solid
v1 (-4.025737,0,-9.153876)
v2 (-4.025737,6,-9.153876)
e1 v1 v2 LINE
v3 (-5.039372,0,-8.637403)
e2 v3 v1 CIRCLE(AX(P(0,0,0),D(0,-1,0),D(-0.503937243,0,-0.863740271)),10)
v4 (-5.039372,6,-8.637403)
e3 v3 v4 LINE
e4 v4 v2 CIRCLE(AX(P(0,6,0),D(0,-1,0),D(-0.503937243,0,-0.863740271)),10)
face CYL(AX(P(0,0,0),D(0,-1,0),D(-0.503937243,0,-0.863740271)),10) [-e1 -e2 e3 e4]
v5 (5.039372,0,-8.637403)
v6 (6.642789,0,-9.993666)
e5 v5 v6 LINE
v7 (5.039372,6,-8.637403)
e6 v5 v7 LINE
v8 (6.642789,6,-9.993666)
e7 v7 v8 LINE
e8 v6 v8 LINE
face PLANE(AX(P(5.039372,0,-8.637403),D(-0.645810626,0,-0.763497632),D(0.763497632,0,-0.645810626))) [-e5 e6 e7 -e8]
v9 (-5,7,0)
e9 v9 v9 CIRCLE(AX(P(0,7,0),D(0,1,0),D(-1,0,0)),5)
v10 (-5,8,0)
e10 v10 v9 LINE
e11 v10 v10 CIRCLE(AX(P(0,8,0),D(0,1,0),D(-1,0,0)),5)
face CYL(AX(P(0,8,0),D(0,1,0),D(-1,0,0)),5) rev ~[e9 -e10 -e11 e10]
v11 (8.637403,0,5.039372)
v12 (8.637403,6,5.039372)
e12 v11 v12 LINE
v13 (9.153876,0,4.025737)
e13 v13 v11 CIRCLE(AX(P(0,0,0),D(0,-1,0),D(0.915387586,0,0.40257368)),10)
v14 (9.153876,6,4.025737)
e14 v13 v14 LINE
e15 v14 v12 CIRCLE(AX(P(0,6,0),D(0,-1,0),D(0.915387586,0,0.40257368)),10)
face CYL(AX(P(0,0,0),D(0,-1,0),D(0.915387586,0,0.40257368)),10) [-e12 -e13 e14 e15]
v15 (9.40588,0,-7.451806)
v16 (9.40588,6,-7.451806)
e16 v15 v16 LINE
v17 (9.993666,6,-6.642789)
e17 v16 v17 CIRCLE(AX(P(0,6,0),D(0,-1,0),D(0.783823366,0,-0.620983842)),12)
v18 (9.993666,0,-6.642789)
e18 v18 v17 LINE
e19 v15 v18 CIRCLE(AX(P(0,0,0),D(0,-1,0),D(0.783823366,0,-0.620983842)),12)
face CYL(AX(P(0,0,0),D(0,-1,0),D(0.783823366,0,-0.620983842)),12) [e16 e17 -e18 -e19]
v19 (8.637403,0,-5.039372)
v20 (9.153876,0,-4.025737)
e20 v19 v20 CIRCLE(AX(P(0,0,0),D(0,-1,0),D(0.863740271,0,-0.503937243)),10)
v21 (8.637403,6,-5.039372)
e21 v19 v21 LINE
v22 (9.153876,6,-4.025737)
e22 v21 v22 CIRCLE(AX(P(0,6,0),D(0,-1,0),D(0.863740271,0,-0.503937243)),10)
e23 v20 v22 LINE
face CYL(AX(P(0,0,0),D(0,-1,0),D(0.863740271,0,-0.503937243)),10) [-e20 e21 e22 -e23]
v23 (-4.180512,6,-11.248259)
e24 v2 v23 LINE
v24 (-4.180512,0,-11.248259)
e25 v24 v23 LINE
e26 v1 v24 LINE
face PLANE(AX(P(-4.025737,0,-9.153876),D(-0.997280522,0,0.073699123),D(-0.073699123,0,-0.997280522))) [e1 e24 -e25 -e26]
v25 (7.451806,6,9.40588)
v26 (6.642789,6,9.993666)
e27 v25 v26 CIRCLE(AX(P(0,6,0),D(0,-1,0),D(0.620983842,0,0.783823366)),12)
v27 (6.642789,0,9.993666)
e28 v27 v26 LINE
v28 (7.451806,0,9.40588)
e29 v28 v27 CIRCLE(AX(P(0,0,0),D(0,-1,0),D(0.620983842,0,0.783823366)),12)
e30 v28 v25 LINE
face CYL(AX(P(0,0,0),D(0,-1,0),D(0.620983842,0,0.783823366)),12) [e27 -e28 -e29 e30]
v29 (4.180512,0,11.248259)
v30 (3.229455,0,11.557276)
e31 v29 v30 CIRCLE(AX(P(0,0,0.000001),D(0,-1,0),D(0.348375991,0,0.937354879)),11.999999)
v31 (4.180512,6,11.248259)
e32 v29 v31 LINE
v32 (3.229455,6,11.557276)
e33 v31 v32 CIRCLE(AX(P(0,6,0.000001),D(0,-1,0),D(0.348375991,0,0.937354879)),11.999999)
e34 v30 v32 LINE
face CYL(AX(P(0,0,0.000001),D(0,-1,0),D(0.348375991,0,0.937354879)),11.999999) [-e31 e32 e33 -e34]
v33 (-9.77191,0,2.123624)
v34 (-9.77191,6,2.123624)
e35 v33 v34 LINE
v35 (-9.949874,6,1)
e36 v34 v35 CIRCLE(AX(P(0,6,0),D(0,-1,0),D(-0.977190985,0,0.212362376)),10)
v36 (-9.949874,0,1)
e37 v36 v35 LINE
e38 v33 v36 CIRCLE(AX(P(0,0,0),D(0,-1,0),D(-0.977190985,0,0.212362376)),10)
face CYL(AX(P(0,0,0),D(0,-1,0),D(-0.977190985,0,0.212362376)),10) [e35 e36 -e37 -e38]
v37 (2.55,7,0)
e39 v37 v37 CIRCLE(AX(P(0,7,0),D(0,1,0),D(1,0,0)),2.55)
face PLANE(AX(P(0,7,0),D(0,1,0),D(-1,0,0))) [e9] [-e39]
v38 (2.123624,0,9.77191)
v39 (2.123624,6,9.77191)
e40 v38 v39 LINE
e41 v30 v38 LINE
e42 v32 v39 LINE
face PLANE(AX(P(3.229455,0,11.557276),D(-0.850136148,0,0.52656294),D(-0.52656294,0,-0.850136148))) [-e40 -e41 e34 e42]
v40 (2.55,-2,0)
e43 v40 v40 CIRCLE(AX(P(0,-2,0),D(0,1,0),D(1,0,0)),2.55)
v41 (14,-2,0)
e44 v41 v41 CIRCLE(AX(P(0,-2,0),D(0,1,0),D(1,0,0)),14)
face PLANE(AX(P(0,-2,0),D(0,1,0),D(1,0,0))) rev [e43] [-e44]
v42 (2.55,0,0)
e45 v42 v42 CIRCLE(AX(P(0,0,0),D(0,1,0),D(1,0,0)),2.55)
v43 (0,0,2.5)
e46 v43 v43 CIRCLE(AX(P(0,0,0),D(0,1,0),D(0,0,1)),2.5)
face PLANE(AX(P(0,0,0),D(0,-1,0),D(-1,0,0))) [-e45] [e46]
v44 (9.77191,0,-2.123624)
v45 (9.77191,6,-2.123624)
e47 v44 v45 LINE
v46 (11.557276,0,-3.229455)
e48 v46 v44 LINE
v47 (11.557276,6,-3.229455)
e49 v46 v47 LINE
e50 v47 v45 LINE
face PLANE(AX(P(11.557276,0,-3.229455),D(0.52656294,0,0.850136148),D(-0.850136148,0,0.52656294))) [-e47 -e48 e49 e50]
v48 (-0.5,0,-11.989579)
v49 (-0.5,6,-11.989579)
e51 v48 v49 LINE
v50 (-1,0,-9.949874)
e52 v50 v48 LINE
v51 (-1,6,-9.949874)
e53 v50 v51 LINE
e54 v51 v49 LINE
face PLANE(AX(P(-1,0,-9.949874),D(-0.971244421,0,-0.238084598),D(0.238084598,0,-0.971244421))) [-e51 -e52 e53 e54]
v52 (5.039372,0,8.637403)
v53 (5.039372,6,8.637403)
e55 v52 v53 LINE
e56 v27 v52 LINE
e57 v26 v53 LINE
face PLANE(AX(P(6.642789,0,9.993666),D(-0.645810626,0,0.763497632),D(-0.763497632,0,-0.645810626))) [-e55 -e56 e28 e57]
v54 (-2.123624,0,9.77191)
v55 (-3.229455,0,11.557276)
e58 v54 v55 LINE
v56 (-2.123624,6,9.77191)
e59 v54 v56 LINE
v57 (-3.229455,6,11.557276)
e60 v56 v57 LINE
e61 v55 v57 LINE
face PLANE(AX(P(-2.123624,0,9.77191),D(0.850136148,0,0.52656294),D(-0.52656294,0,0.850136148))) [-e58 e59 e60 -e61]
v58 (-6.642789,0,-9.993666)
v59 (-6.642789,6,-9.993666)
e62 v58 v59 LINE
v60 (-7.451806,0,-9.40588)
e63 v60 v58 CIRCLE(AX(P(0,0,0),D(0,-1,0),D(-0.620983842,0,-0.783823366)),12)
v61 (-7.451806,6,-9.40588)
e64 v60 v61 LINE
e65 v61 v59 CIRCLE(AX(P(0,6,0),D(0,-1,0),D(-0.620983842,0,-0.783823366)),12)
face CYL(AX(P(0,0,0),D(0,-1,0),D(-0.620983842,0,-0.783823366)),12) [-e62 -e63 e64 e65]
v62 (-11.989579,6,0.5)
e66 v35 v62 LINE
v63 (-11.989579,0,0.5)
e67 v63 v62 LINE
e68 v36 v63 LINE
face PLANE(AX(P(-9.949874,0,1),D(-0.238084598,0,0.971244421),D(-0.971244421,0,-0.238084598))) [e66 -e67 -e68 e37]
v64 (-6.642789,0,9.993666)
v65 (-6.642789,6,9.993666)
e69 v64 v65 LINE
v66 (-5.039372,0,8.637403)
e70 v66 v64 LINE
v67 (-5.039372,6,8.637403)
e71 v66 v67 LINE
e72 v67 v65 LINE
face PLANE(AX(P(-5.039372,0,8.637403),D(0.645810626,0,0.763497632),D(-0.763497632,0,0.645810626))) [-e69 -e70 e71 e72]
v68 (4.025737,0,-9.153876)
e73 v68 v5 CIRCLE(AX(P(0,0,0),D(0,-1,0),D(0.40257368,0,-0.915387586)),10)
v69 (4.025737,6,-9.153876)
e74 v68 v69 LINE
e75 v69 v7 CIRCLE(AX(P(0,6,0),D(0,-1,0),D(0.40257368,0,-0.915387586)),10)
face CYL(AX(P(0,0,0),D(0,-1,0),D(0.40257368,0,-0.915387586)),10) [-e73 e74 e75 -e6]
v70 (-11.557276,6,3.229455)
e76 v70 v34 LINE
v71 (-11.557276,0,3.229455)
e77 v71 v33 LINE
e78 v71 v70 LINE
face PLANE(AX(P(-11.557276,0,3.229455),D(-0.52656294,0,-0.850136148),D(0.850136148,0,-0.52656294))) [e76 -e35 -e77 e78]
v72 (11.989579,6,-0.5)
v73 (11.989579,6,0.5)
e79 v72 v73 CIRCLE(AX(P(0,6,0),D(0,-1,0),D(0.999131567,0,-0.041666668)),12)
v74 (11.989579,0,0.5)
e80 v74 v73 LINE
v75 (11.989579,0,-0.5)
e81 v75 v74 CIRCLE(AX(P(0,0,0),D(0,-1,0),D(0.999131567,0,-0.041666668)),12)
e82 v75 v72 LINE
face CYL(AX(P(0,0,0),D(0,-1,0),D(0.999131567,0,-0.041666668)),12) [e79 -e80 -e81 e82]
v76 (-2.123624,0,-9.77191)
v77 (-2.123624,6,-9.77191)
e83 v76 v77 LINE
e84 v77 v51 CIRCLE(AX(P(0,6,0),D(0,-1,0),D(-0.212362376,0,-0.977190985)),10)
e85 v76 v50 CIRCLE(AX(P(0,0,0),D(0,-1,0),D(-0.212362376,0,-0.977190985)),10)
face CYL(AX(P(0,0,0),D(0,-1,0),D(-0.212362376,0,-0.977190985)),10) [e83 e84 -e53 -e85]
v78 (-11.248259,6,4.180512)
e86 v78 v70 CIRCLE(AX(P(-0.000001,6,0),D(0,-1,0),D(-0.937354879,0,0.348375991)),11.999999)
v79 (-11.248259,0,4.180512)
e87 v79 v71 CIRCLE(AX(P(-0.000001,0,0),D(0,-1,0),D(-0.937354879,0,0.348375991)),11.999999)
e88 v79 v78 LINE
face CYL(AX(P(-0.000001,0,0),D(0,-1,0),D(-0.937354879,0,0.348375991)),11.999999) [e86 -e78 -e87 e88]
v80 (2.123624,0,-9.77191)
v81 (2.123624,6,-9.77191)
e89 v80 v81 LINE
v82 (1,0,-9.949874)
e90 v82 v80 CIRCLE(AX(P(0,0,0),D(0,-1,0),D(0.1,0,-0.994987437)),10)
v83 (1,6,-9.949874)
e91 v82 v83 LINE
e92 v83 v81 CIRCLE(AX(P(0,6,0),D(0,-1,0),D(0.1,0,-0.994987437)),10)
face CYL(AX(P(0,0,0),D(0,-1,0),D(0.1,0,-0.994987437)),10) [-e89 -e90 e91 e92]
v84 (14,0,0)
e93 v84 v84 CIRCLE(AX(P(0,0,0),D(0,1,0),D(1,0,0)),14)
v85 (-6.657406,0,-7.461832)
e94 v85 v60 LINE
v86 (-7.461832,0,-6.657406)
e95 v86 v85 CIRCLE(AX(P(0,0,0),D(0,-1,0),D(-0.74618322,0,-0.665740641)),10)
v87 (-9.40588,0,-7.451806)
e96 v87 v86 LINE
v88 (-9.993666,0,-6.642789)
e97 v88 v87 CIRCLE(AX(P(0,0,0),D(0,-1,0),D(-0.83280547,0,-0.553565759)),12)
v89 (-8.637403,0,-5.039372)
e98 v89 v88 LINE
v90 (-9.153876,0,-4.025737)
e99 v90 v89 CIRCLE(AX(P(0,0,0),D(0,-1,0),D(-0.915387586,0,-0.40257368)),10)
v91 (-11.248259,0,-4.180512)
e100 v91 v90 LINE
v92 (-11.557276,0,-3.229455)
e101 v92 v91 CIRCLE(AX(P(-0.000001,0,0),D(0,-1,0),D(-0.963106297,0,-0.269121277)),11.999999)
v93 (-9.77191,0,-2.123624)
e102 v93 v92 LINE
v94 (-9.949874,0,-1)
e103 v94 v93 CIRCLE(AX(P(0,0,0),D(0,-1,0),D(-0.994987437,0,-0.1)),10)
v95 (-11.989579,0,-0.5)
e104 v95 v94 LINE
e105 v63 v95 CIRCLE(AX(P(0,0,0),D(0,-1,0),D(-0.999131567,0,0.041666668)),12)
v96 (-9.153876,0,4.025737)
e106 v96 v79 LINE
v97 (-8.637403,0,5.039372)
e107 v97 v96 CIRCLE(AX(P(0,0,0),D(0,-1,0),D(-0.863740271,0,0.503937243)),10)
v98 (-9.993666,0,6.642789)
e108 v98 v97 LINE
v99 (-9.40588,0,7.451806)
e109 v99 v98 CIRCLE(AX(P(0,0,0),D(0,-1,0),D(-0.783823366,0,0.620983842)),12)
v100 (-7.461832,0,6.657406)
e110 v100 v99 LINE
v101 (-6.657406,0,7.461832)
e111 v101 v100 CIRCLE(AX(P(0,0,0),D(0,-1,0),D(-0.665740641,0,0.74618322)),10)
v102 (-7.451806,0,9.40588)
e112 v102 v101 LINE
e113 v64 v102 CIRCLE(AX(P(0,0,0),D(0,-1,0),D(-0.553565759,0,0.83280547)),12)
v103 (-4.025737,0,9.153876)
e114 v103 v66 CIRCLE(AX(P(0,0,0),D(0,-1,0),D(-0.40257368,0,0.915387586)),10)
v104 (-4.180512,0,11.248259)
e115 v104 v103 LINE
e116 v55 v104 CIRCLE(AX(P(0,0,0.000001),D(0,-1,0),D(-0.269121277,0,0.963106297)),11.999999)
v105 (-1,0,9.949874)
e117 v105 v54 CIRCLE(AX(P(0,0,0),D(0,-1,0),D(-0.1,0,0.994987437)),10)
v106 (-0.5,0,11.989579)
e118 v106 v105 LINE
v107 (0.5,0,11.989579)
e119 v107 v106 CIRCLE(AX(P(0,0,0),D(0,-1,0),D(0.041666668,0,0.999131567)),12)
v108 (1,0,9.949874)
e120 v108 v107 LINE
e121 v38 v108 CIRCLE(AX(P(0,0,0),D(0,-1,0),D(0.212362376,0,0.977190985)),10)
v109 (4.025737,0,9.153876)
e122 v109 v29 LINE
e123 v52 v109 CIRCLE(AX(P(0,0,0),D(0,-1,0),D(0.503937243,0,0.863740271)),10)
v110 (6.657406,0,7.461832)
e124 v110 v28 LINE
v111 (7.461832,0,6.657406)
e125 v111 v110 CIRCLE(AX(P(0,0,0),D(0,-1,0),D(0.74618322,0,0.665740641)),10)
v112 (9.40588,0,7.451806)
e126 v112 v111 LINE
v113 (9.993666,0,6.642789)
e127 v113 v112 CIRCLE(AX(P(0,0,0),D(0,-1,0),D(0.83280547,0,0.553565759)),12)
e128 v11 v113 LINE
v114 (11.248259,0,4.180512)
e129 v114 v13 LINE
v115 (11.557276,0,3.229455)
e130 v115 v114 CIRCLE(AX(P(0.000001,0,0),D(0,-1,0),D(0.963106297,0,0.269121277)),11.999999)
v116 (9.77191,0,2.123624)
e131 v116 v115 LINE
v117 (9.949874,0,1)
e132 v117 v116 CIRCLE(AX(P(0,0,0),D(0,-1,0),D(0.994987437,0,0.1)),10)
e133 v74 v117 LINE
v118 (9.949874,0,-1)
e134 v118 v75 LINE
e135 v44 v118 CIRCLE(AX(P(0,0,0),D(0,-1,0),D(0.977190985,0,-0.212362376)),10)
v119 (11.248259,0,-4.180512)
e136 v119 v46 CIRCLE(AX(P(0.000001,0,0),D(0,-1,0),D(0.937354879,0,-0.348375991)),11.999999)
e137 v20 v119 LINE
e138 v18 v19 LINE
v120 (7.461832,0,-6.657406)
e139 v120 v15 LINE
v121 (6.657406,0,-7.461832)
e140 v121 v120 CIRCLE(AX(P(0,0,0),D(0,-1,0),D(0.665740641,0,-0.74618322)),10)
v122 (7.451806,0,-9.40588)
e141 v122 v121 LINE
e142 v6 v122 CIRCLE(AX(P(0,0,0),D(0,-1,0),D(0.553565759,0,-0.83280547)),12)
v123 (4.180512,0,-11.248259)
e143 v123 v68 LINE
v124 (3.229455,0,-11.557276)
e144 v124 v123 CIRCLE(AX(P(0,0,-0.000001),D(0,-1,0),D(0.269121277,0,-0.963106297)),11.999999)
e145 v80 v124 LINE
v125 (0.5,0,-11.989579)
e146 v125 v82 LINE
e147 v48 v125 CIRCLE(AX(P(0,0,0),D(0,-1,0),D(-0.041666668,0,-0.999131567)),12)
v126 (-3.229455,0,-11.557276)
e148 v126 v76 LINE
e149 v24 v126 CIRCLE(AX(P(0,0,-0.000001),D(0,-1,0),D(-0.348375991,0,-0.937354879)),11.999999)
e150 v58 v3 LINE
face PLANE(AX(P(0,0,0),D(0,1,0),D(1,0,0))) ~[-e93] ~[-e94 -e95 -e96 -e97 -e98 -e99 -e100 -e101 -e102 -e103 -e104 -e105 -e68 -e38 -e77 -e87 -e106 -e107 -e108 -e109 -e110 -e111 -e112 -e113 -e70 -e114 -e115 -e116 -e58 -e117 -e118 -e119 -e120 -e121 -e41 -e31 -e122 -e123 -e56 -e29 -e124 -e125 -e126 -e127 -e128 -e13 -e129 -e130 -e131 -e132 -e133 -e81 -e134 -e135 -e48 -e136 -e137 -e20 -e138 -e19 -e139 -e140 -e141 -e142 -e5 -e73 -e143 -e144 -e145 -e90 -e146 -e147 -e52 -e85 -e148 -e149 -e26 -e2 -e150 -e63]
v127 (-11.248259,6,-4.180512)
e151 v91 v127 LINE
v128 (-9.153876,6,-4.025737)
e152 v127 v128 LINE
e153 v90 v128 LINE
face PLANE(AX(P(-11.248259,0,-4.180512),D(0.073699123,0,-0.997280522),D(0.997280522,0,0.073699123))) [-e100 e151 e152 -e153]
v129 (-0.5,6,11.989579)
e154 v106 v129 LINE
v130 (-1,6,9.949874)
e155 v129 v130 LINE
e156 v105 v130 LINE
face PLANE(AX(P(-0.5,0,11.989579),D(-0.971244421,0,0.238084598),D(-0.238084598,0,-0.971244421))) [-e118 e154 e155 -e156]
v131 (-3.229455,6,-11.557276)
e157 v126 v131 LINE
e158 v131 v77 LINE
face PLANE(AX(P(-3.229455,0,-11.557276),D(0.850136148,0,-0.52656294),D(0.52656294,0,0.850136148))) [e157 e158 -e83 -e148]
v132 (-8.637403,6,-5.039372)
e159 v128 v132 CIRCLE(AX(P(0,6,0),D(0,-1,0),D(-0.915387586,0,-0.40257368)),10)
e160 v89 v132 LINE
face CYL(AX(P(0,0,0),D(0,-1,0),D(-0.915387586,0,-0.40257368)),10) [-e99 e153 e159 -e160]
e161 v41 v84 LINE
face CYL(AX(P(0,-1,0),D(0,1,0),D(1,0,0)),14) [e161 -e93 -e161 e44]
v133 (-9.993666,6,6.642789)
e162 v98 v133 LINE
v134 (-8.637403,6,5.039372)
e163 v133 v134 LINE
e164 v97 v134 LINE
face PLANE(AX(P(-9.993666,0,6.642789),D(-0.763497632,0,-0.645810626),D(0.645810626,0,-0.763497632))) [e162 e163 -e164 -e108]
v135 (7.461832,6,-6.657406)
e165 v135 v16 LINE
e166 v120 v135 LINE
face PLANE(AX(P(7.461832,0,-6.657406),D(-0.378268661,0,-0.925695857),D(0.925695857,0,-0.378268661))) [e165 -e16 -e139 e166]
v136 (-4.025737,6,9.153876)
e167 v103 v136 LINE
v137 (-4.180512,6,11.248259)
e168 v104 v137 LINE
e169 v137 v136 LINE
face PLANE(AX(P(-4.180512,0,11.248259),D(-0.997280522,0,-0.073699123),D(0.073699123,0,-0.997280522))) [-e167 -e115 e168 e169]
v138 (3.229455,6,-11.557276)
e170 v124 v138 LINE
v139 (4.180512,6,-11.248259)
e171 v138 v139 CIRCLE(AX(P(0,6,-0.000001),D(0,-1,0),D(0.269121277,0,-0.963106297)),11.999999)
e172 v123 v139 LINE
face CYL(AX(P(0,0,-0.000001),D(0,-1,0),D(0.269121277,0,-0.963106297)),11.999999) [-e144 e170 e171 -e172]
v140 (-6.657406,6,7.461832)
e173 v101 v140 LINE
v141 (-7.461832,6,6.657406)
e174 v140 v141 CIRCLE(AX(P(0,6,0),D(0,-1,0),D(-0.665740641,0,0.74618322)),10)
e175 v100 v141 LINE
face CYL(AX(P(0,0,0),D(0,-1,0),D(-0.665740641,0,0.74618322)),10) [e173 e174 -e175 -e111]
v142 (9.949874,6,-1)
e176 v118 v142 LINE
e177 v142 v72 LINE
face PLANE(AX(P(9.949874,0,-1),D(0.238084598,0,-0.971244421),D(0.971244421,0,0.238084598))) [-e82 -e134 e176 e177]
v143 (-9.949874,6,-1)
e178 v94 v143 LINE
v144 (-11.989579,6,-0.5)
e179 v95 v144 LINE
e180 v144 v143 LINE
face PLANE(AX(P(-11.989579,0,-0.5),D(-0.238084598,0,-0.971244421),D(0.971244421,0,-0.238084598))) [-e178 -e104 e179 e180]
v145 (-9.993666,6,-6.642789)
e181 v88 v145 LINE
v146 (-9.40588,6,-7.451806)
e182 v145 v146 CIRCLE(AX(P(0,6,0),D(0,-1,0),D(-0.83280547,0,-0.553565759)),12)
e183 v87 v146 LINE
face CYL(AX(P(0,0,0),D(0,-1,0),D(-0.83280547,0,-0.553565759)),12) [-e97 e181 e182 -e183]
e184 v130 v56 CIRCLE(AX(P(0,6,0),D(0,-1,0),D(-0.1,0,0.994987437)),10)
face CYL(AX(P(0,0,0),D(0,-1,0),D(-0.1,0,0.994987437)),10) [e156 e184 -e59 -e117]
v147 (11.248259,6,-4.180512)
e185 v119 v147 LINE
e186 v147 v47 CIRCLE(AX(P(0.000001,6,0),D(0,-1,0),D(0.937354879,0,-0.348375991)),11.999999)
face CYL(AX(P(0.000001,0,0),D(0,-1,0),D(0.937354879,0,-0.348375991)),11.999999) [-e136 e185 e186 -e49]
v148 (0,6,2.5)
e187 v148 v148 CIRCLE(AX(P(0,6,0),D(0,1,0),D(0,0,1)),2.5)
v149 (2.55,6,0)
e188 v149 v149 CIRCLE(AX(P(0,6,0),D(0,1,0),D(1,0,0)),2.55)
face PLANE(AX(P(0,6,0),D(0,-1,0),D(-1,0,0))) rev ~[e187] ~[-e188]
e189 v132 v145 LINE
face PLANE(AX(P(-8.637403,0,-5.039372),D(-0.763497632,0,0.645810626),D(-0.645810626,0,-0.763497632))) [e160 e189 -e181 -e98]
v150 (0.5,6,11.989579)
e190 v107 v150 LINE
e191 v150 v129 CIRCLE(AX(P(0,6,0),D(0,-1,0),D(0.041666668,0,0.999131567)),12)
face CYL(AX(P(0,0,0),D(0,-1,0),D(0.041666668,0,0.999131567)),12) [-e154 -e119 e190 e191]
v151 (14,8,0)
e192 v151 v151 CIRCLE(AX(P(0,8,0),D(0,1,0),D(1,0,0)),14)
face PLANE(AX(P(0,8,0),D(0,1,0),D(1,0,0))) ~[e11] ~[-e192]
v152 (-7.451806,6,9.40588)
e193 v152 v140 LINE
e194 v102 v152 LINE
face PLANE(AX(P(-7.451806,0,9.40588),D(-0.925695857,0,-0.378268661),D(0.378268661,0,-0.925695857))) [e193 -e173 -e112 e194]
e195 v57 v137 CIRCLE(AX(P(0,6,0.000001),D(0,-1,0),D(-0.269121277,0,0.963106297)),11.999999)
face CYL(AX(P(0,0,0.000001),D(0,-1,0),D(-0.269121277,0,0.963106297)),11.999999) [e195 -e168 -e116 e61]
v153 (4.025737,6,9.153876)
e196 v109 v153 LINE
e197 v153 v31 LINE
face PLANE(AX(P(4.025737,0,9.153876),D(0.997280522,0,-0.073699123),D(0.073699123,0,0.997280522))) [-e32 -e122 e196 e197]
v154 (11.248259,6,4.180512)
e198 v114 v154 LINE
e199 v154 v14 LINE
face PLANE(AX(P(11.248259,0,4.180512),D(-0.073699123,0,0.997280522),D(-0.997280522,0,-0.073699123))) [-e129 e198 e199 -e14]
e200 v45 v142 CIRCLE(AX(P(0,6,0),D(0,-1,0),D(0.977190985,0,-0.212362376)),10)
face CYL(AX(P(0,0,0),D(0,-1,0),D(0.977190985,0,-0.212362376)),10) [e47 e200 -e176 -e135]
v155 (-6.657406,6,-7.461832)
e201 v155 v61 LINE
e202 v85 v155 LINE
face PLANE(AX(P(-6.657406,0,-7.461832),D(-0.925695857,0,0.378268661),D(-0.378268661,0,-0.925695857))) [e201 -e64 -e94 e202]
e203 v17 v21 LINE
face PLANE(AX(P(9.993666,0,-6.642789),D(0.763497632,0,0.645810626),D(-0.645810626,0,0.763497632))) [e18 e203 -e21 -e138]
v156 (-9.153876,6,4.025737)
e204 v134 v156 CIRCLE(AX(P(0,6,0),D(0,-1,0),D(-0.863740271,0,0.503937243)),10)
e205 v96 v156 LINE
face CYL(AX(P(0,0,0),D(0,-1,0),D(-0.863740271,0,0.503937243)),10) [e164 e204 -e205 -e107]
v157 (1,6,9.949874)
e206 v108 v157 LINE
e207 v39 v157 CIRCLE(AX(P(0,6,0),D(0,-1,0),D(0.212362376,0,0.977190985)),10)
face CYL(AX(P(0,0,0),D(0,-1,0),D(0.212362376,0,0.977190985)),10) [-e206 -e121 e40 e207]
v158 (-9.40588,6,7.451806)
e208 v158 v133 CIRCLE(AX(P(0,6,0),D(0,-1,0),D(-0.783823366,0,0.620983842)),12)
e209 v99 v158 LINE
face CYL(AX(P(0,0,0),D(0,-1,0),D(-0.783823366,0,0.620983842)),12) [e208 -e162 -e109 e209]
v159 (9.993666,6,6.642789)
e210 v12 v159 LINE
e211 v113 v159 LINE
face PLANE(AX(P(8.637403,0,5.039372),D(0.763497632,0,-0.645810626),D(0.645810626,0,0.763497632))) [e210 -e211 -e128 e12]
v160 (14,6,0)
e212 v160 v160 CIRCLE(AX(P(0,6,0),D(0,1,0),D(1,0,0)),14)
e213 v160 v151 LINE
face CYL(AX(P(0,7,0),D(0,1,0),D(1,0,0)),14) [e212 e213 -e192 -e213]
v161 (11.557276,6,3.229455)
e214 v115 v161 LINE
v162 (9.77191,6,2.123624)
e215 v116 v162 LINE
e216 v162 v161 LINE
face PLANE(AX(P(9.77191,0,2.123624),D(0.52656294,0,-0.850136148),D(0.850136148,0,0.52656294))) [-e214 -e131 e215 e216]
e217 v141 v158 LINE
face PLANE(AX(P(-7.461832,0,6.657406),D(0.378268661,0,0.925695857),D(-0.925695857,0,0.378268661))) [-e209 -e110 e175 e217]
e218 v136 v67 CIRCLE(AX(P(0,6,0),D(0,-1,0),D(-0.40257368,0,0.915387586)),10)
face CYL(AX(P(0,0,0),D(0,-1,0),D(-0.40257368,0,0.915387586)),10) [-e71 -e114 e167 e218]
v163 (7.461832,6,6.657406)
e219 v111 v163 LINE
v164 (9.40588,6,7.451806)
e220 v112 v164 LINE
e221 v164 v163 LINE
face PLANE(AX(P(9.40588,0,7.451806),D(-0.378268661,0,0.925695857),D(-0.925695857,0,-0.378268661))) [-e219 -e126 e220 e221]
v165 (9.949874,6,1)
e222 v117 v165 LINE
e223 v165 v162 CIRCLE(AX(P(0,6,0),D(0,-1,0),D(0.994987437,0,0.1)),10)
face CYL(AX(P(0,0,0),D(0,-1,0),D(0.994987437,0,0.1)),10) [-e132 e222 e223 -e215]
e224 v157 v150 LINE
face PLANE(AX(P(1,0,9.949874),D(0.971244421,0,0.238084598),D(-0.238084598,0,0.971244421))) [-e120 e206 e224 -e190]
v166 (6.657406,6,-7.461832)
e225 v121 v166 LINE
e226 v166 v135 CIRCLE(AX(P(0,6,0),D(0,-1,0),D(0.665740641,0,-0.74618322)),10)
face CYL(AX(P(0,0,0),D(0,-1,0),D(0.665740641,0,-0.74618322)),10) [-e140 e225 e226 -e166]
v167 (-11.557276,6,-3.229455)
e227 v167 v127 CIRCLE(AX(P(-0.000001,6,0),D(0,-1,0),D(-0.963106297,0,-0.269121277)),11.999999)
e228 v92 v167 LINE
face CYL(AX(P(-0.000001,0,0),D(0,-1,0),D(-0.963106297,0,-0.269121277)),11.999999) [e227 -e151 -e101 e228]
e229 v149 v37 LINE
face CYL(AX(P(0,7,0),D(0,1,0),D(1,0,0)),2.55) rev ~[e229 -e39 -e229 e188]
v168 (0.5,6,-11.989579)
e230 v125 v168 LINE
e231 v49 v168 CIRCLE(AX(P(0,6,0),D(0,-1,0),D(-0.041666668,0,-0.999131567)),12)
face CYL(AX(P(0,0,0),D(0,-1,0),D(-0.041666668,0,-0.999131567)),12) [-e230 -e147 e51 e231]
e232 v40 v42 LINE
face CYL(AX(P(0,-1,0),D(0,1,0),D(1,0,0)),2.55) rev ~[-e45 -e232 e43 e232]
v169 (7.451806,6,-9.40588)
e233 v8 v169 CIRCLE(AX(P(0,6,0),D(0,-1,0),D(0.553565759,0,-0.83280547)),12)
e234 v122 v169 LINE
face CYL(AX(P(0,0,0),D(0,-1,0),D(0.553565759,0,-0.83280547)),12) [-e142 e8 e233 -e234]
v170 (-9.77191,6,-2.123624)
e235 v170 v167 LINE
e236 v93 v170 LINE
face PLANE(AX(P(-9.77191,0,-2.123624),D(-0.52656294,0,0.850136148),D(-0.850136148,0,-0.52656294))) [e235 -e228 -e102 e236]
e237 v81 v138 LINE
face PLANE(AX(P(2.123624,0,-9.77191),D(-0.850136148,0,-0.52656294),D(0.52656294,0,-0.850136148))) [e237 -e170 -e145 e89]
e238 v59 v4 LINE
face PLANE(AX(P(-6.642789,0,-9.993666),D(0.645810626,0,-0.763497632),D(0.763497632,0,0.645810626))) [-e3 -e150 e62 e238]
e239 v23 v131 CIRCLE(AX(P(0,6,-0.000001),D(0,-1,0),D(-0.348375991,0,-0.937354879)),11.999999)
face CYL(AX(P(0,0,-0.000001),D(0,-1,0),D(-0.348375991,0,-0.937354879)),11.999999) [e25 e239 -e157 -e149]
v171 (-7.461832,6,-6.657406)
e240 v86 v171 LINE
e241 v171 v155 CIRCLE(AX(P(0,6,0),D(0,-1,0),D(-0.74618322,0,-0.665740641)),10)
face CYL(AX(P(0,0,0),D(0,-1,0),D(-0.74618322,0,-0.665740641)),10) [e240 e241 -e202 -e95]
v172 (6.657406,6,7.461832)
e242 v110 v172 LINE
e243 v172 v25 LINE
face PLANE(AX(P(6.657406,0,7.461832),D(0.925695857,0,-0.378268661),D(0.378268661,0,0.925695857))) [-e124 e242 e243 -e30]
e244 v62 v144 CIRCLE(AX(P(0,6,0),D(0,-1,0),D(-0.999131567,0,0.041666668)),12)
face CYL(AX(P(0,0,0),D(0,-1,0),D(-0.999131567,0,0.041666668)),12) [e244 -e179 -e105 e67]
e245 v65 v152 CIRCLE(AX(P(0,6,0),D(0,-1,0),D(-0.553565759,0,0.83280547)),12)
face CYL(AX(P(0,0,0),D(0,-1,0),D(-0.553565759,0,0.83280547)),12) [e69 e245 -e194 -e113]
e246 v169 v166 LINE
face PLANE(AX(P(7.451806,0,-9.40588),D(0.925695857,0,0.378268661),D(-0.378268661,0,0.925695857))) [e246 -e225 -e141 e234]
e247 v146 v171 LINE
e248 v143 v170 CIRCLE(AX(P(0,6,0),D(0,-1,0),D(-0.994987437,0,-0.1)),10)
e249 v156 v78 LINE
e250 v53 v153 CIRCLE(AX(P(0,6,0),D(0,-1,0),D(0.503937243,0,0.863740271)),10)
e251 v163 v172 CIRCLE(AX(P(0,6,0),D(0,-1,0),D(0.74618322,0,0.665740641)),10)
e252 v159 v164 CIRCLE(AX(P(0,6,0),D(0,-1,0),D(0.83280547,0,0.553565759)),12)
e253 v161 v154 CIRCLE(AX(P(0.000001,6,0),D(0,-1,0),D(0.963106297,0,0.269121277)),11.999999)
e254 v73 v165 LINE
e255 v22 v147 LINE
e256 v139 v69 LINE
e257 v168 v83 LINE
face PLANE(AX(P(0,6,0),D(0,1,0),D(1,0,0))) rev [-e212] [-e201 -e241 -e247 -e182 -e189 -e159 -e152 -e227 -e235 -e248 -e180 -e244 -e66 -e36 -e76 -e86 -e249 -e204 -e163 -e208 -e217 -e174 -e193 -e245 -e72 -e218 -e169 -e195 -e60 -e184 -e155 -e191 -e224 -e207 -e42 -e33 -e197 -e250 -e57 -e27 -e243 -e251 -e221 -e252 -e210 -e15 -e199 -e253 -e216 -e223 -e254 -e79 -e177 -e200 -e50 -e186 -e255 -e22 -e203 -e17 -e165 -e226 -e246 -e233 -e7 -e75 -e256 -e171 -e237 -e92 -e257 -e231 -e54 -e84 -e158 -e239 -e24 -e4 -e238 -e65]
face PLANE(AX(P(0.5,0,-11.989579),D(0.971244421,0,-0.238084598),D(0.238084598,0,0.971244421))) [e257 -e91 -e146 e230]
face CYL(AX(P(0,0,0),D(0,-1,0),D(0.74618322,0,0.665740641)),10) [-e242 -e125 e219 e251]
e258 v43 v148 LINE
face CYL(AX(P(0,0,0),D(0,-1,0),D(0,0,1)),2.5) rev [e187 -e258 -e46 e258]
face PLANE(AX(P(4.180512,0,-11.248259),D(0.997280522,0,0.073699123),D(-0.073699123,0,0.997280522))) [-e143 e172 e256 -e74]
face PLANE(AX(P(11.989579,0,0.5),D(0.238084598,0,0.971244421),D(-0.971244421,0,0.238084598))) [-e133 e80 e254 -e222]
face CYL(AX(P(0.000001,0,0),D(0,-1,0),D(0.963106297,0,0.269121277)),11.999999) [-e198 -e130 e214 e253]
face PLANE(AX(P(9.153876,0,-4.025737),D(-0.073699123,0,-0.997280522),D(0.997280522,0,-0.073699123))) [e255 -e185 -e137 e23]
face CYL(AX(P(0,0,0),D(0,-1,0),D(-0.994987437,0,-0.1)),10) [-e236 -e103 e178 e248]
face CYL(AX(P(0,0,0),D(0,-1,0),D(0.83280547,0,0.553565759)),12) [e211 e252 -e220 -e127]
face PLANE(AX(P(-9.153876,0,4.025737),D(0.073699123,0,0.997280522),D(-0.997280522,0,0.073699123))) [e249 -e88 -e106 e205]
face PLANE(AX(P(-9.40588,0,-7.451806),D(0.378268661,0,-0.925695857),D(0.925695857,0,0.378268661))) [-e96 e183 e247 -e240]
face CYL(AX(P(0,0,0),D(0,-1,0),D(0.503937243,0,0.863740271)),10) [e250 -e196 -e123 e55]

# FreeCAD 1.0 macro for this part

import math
import FreeCAD as App
import Part
import Sketcher
from FreeCAD import Vector


def add_polygon(sketch, points):
    """Adds a closed chain of lines whose ends are joined by coincident constraints."""
    first, n = sketch.GeometryCount, len(points)
    for a, b in zip(points, points[1:] + points[:1]):
        sketch.addGeometry(Part.LineSegment(App.Vector(*a, 0), App.Vector(*b, 0)), False)
    for i in range(n):
        sketch.addConstraint(Sketcher.Constraint("Coincident", first + i, 2, first + (i + 1) % n, 1))

doc = App.newDocument("Part")
params = doc.addObject("Spreadsheet::Sheet", "Params")
for row, (alias, value) in enumerate([
    ("sketch1_diameter", "5 mm"),
    ("sketch1_radius", "12 mm"),
    ("sketch1_radius2", "10 mm"),
    ("pad1_length", "6 mm"),
    ("sketch2_height", "2 mm"),
    ("sketch2_width", "11.45 mm"),
    ("revolution_angle", "360 deg"),
    ("sketch3_diameter", "10 mm"),
    ("pocket1_length", "1 mm"),
], start=1):
    params.set(f"A{row}", alias)
    params.set(f"B{row}", "=" + value)
    params.setAlias(f"B{row}", alias)

body = doc.addObject("PartDesign::Body", "Body")

# Sketch on XZ plane
sketch1 = body.newObject("Sketcher::SketchObject", "Sketch")
sketch1.AttachmentSupport = (doc.getObject("XZ_Plane"), [""])
sketch1.MapMode = "FlatFace"
sketch1.addGeometry([
    Part.LineSegment(Vector(1, -9.949874, 0), Vector(0.5, -11.989579, 0)),  # 0
    Part.ArcOfCircle(Part.Circle(Vector(0, 0, 0), Vector(0, 0, 1), 12), math.radians(-92.388016), math.radians(-87.611984)),  # 1
    Part.LineSegment(Vector(-0.5, -11.989579, 0), Vector(-1, -9.949874, 0)),  # 2
    Part.ArcOfCircle(Part.Circle(Vector(0, 0, 0), Vector(0, 0, 1), 10), math.radians(-102.26083), math.radians(-95.73917)),  # 3
    Part.LineSegment(Vector(-2.123624, -9.77191, 0), Vector(-3.229455, -11.557276, 0)),  # 4
    Part.ArcOfCircle(Part.Circle(Vector(0, -0.000001, 0), Vector(0, 0, 1), 11.999999), math.radians(-110.388016), math.radians(-105.611984)),  # 5
    Part.LineSegment(Vector(-4.180512, -11.248259, 0), Vector(-4.025737, -9.153876, 0)),  # 6
    Part.ArcOfCircle(Part.Circle(Vector(0, 0, 0), Vector(0, 0, 1), 10), math.radians(-120.26083), math.radians(-113.739171)),  # 7
    Part.LineSegment(Vector(-5.039372, -8.637403, 0), Vector(-6.642789, -9.993666, 0)),  # 8
    Part.ArcOfCircle(Part.Circle(Vector(0, 0, 0), Vector(0, 0, 1), 12), math.radians(-128.388015), math.radians(-123.611985)),  # 9
    Part.LineSegment(Vector(-7.451806, -9.40588, 0), Vector(-6.657406, -7.461832, 0)),  # 10
    Part.ArcOfCircle(Part.Circle(Vector(0, 0, 0), Vector(0, 0, 1), 10), math.radians(-138.26083), math.radians(-131.73917)),  # 11
    Part.LineSegment(Vector(-7.461832, -6.657406, 0), Vector(-9.40588, -7.451806, 0)),  # 12
    Part.ArcOfCircle(Part.Circle(Vector(0, 0, 0), Vector(0, 0, 1), 12), math.radians(-146.388015), math.radians(-141.611985)),  # 13
    Part.LineSegment(Vector(-9.993666, -6.642789, 0), Vector(-8.637403, -5.039372, 0)),  # 14
    Part.ArcOfCircle(Part.Circle(Vector(0, 0, 0), Vector(0, 0, 1), 10), math.radians(-156.260829), math.radians(-149.73917)),  # 15
    Part.LineSegment(Vector(-9.153876, -4.025737, 0), Vector(-11.248259, -4.180512, 0)),  # 16
    Part.ArcOfCircle(Part.Circle(Vector(-0.000001, 0, 0), Vector(0, 0, 1), 11.999999), math.radians(-164.388016), math.radians(-159.611984)),  # 17
    Part.LineSegment(Vector(-11.557276, -3.229455, 0), Vector(-9.77191, -2.123624, 0)),  # 18
    Part.ArcOfCircle(Part.Circle(Vector(0, 0, 0), Vector(0, 0, 1), 10), math.radians(-174.26083), math.radians(-167.73917)),  # 19
    Part.LineSegment(Vector(-9.949874, -1, 0), Vector(-11.989579, -0.5, 0)),  # 20
    Part.ArcOfCircle(Part.Circle(Vector(0, 0, 0), Vector(0, 0, 1), 12), math.radians(177.611984), math.radians(182.388016)),  # 21
    Part.LineSegment(Vector(-11.989579, 0.5, 0), Vector(-9.949874, 1, 0)),  # 22
    Part.ArcOfCircle(Part.Circle(Vector(0, 0, 0), Vector(0, 0, 1), 10), math.radians(167.73917), math.radians(174.26083)),  # 23
    Part.LineSegment(Vector(-9.77191, 2.123624, 0), Vector(-11.557276, 3.229455, 0)),  # 24
    Part.ArcOfCircle(Part.Circle(Vector(-0.000001, 0, 0), Vector(0, 0, 1), 11.999999), math.radians(159.611984), math.radians(164.388016)),  # 25
    Part.LineSegment(Vector(-11.248259, 4.180512, 0), Vector(-9.153876, 4.025737, 0)),  # 26
    Part.ArcOfCircle(Part.Circle(Vector(0, 0, 0), Vector(0, 0, 1), 10), math.radians(149.73917), math.radians(156.260829)),  # 27
    Part.LineSegment(Vector(-8.637403, 5.039372, 0), Vector(-9.993666, 6.642789, 0)),  # 28
    Part.ArcOfCircle(Part.Circle(Vector(0, 0, 0), Vector(0, 0, 1), 12), math.radians(141.611985), math.radians(146.388015)),  # 29
    Part.LineSegment(Vector(-9.40588, 7.451806, 0), Vector(-7.461832, 6.657406, 0)),  # 30
    Part.ArcOfCircle(Part.Circle(Vector(0, 0, 0), Vector(0, 0, 1), 10), math.radians(131.73917), math.radians(138.26083)),  # 31
    Part.LineSegment(Vector(-6.657406, 7.461832, 0), Vector(-7.451806, 9.40588, 0)),  # 32
    Part.ArcOfCircle(Part.Circle(Vector(0, 0, 0), Vector(0, 0, 1), 12), math.radians(123.611985), math.radians(128.388015)),  # 33
    Part.LineSegment(Vector(-6.642789, 9.993666, 0), Vector(-5.039372, 8.637403, 0)),  # 34
    Part.ArcOfCircle(Part.Circle(Vector(0, 0, 0), Vector(0, 0, 1), 10), math.radians(113.739171), math.radians(120.26083)),  # 35
    Part.LineSegment(Vector(-4.025737, 9.153876, 0), Vector(-4.180512, 11.248259, 0)),  # 36
    Part.ArcOfCircle(Part.Circle(Vector(0, 0.000001, 0), Vector(0, 0, 1), 11.999999), math.radians(105.611984), math.radians(110.388016)),  # 37
    Part.LineSegment(Vector(-3.229455, 11.557276, 0), Vector(-2.123624, 9.77191, 0)),  # 38
    Part.ArcOfCircle(Part.Circle(Vector(0, 0, 0), Vector(0, 0, 1), 10), math.radians(95.73917), math.radians(102.26083)),  # 39
    Part.LineSegment(Vector(-1, 9.949874, 0), Vector(-0.5, 11.989579, 0)),  # 40
    Part.ArcOfCircle(Part.Circle(Vector(0, 0, 0), Vector(0, 0, 1), 12), math.radians(87.611984), math.radians(92.388016)),  # 41
    Part.LineSegment(Vector(0.5, 11.989579, 0), Vector(1, 9.949874, 0)),  # 42
    Part.ArcOfCircle(Part.Circle(Vector(0, 0, 0), Vector(0, 0, 1), 10), math.radians(77.73917), math.radians(84.26083)),  # 43
    Part.LineSegment(Vector(2.123624, 9.77191, 0), Vector(3.229455, 11.557276, 0)),  # 44
    Part.ArcOfCircle(Part.Circle(Vector(0, 0.000001, 0), Vector(0, 0, 1), 11.999999), math.radians(69.611984), math.radians(74.388016)),  # 45
    Part.LineSegment(Vector(4.180512, 11.248259, 0), Vector(4.025737, 9.153876, 0)),  # 46
    Part.ArcOfCircle(Part.Circle(Vector(0, 0, 0), Vector(0, 0, 1), 10), math.radians(59.73917), math.radians(66.260829)),  # 47
    Part.LineSegment(Vector(5.039372, 8.637403, 0), Vector(6.642789, 9.993666, 0)),  # 48
    Part.ArcOfCircle(Part.Circle(Vector(0, 0, 0), Vector(0, 0, 1), 12), math.radians(51.611985), math.radians(56.388015)),  # 49
    Part.LineSegment(Vector(7.451806, 9.40588, 0), Vector(6.657406, 7.461832, 0)),  # 50
    Part.ArcOfCircle(Part.Circle(Vector(0, 0, 0), Vector(0, 0, 1), 10), math.radians(41.73917), math.radians(48.26083)),  # 51
    Part.LineSegment(Vector(7.461832, 6.657406, 0), Vector(9.40588, 7.451806, 0)),  # 52
    Part.ArcOfCircle(Part.Circle(Vector(0, 0, 0), Vector(0, 0, 1), 12), math.radians(33.611985), math.radians(38.388015)),  # 53
    Part.LineSegment(Vector(9.993666, 6.642789, 0), Vector(8.637403, 5.039372, 0)),  # 54
    Part.ArcOfCircle(Part.Circle(Vector(0, 0, 0), Vector(0, 0, 1), 10), math.radians(23.739171), math.radians(30.26083)),  # 55
    Part.LineSegment(Vector(9.153876, 4.025737, 0), Vector(11.248259, 4.180512, 0)),  # 56
    Part.ArcOfCircle(Part.Circle(Vector(0.000001, 0, 0), Vector(0, 0, 1), 11.999999), math.radians(15.611984), math.radians(20.388016)),  # 57
    Part.LineSegment(Vector(11.557276, 3.229455, 0), Vector(9.77191, 2.123624, 0)),  # 58
    Part.ArcOfCircle(Part.Circle(Vector(0, 0, 0), Vector(0, 0, 1), 10), math.radians(5.73917), math.radians(12.26083)),  # 59
    Part.LineSegment(Vector(9.949874, 1, 0), Vector(11.989579, 0.5, 0)),  # 60
    Part.ArcOfCircle(Part.Circle(Vector(0, 0, 0), Vector(0, 0, 1), 12), math.radians(-2.388016), math.radians(2.388016)),  # 61
    Part.LineSegment(Vector(11.989579, -0.5, 0), Vector(9.949874, -1, 0)),  # 62
    Part.ArcOfCircle(Part.Circle(Vector(0, 0, 0), Vector(0, 0, 1), 10), math.radians(-12.26083), math.radians(-5.73917)),  # 63
    Part.LineSegment(Vector(9.77191, -2.123624, 0), Vector(11.557276, -3.229455, 0)),  # 64
    Part.ArcOfCircle(Part.Circle(Vector(0.000001, 0, 0), Vector(0, 0, 1), 11.999999), math.radians(-20.388016), math.radians(-15.611984)),  # 65
    Part.LineSegment(Vector(11.248259, -4.180512, 0), Vector(9.153876, -4.025737, 0)),  # 66
    Part.ArcOfCircle(Part.Circle(Vector(0, 0, 0), Vector(0, 0, 1), 10), math.radians(-30.26083), math.radians(-23.739171)),  # 67
    Part.LineSegment(Vector(8.637403, -5.039372, 0), Vector(9.993666, -6.642789, 0)),  # 68
    Part.ArcOfCircle(Part.Circle(Vector(0, 0, 0), Vector(0, 0, 1), 12), math.radians(-38.388015), math.radians(-33.611985)),  # 69
    Part.LineSegment(Vector(9.40588, -7.451806, 0), Vector(7.461832, -6.657406, 0)),  # 70
    Part.ArcOfCircle(Part.Circle(Vector(0, 0, 0), Vector(0, 0, 1), 10), math.radians(-48.26083), math.radians(-41.73917)),  # 71
    Part.LineSegment(Vector(6.657406, -7.461832, 0), Vector(7.451806, -9.40588, 0)),  # 72
    Part.ArcOfCircle(Part.Circle(Vector(0, 0, 0), Vector(0, 0, 1), 12), math.radians(-56.388015), math.radians(-51.611985)),  # 73
    Part.LineSegment(Vector(6.642789, -9.993666, 0), Vector(5.039372, -8.637403, 0)),  # 74
    Part.ArcOfCircle(Part.Circle(Vector(0, 0, 0), Vector(0, 0, 1), 10), math.radians(-66.260829), math.radians(-59.73917)),  # 75
    Part.LineSegment(Vector(4.025737, -9.153876, 0), Vector(4.180512, -11.248259, 0)),  # 76
    Part.ArcOfCircle(Part.Circle(Vector(0, -0.000001, 0), Vector(0, 0, 1), 11.999999), math.radians(-74.388016), math.radians(-69.611984)),  # 77
    Part.LineSegment(Vector(3.229455, -11.557276, 0), Vector(2.123624, -9.77191, 0)),  # 78
    Part.ArcOfCircle(Part.Circle(Vector(0, 0, 0), Vector(0, 0, 1), 10), math.radians(-84.26083), math.radians(-77.73917)),  # 79
    Part.Circle(Vector(0, 0, 0), Vector(0, 0, 1), 2.5),  # 80
], False)
sketch1.addConstraint([
    Sketcher.Constraint("Coincident", 0, 2, 1, 2),
    Sketcher.Constraint("Coincident", 1, 1, 2, 1),
    Sketcher.Constraint("Coincident", 2, 2, 3, 2),
    Sketcher.Constraint("Coincident", 3, 1, 4, 1),
    Sketcher.Constraint("Coincident", 4, 2, 5, 2),
    Sketcher.Constraint("Coincident", 5, 1, 6, 1),
    Sketcher.Constraint("Coincident", 6, 2, 7, 2),
    Sketcher.Constraint("Coincident", 7, 1, 8, 1),
    Sketcher.Constraint("Coincident", 8, 2, 9, 2),
    Sketcher.Constraint("Coincident", 9, 1, 10, 1),
    Sketcher.Constraint("Coincident", 10, 2, 11, 2),
    Sketcher.Constraint("Coincident", 11, 1, 12, 1),
    Sketcher.Constraint("Coincident", 12, 2, 13, 2),
    Sketcher.Constraint("Coincident", 13, 1, 14, 1),
    Sketcher.Constraint("Coincident", 14, 2, 15, 2),
    Sketcher.Constraint("Coincident", 15, 1, 16, 1),
    Sketcher.Constraint("Coincident", 16, 2, 17, 2),
    Sketcher.Constraint("Coincident", 17, 1, 18, 1),
    Sketcher.Constraint("Coincident", 18, 2, 19, 2),
    Sketcher.Constraint("Coincident", 19, 1, 20, 1),
    Sketcher.Constraint("Coincident", 20, 2, 21, 2),
    Sketcher.Constraint("Coincident", 21, 1, 22, 1),
    Sketcher.Constraint("Coincident", 22, 2, 23, 2),
    Sketcher.Constraint("Coincident", 23, 1, 24, 1),
    Sketcher.Constraint("Coincident", 24, 2, 25, 2),
    Sketcher.Constraint("Coincident", 25, 1, 26, 1),
    Sketcher.Constraint("Coincident", 26, 2, 27, 2),
    Sketcher.Constraint("Coincident", 27, 1, 28, 1),
    Sketcher.Constraint("Coincident", 28, 2, 29, 2),
    Sketcher.Constraint("Coincident", 29, 1, 30, 1),
    Sketcher.Constraint("Coincident", 30, 2, 31, 2),
    Sketcher.Constraint("Coincident", 31, 1, 32, 1),
    Sketcher.Constraint("Coincident", 32, 2, 33, 2),
    Sketcher.Constraint("Coincident", 33, 1, 34, 1),
    Sketcher.Constraint("Coincident", 34, 2, 35, 2),
    Sketcher.Constraint("Coincident", 35, 1, 36, 1),
    Sketcher.Constraint("Coincident", 36, 2, 37, 2),
    Sketcher.Constraint("Coincident", 37, 1, 38, 1),
    Sketcher.Constraint("Coincident", 38, 2, 39, 2),
    Sketcher.Constraint("Coincident", 39, 1, 40, 1),
    Sketcher.Constraint("Coincident", 40, 2, 41, 2),
    Sketcher.Constraint("Coincident", 41, 1, 42, 1),
    Sketcher.Constraint("Coincident", 42, 2, 43, 2),
    Sketcher.Constraint("Coincident", 43, 1, 44, 1),
    Sketcher.Constraint("Coincident", 44, 2, 45, 2),
    Sketcher.Constraint("Coincident", 45, 1, 46, 1),
    Sketcher.Constraint("Coincident", 46, 2, 47, 2),
    Sketcher.Constraint("Coincident", 47, 1, 48, 1),
    Sketcher.Constraint("Coincident", 48, 2, 49, 2),
    Sketcher.Constraint("Coincident", 49, 1, 50, 1),
    Sketcher.Constraint("Coincident", 50, 2, 51, 2),
    Sketcher.Constraint("Coincident", 51, 1, 52, 1),
    Sketcher.Constraint("Coincident", 52, 2, 53, 2),
    Sketcher.Constraint("Coincident", 53, 1, 54, 1),
    Sketcher.Constraint("Coincident", 54, 2, 55, 2),
    Sketcher.Constraint("Coincident", 55, 1, 56, 1),
    Sketcher.Constraint("Coincident", 56, 2, 57, 2),
    Sketcher.Constraint("Coincident", 57, 1, 58, 1),
    Sketcher.Constraint("Coincident", 58, 2, 59, 2),
    Sketcher.Constraint("Coincident", 59, 1, 60, 1),
    Sketcher.Constraint("Coincident", 60, 2, 61, 2),
    Sketcher.Constraint("Coincident", 61, 1, 62, 1),
    Sketcher.Constraint("Coincident", 62, 2, 63, 2),
    Sketcher.Constraint("Coincident", 63, 1, 64, 1),
    Sketcher.Constraint("Coincident", 64, 2, 65, 2),
    Sketcher.Constraint("Coincident", 65, 1, 66, 1),
    Sketcher.Constraint("Coincident", 66, 2, 67, 2),
    Sketcher.Constraint("Coincident", 67, 1, 68, 1),
    Sketcher.Constraint("Coincident", 68, 2, 69, 2),
    Sketcher.Constraint("Coincident", 69, 1, 70, 1),
    Sketcher.Constraint("Coincident", 70, 2, 71, 2),
    Sketcher.Constraint("Coincident", 71, 1, 72, 1),
    Sketcher.Constraint("Coincident", 72, 2, 73, 2),
    Sketcher.Constraint("Coincident", 73, 1, 74, 1),
    Sketcher.Constraint("Coincident", 74, 2, 75, 2),
    Sketcher.Constraint("Coincident", 75, 1, 76, 1),
    Sketcher.Constraint("Coincident", 76, 2, 77, 2),
    Sketcher.Constraint("Coincident", 77, 1, 78, 1),
    Sketcher.Constraint("Coincident", 78, 2, 79, 2),
    Sketcher.Constraint("Coincident", 79, 1, 0, 1),
    Sketcher.Constraint("Coincident", 1, 3, -1, 1),
    Sketcher.Constraint("Coincident", 3, 3, -1, 1),
    Sketcher.Constraint("Coincident", 5, 3, -1, 1),
    Sketcher.Constraint("Coincident", 7, 3, -1, 1),
    Sketcher.Constraint("Coincident", 9, 3, -1, 1),
    Sketcher.Constraint("Coincident", 11, 3, -1, 1),
    Sketcher.Constraint("Coincident", 13, 3, -1, 1),
    Sketcher.Constraint("Coincident", 15, 3, -1, 1),
    Sketcher.Constraint("Coincident", 17, 3, -1, 1),
    Sketcher.Constraint("Coincident", 19, 3, -1, 1),
    Sketcher.Constraint("Coincident", 21, 3, -1, 1),
    Sketcher.Constraint("Coincident", 23, 3, -1, 1),
    Sketcher.Constraint("Coincident", 25, 3, -1, 1),
    Sketcher.Constraint("Coincident", 27, 3, -1, 1),
    Sketcher.Constraint("Coincident", 29, 3, -1, 1),
    Sketcher.Constraint("Coincident", 31, 3, -1, 1),
    Sketcher.Constraint("Coincident", 33, 3, -1, 1),
    Sketcher.Constraint("Coincident", 35, 3, -1, 1),
    Sketcher.Constraint("Coincident", 37, 3, -1, 1),
    Sketcher.Constraint("Coincident", 39, 3, -1, 1),
    Sketcher.Constraint("Coincident", 41, 3, -1, 1),
    Sketcher.Constraint("Coincident", 43, 3, -1, 1),
    Sketcher.Constraint("Coincident", 45, 3, -1, 1),
    Sketcher.Constraint("Coincident", 47, 3, -1, 1),
    Sketcher.Constraint("Coincident", 49, 3, -1, 1),
    Sketcher.Constraint("Coincident", 51, 3, -1, 1),
    Sketcher.Constraint("Coincident", 53, 3, -1, 1),
    Sketcher.Constraint("Coincident", 55, 3, -1, 1),
    Sketcher.Constraint("Coincident", 57, 3, -1, 1),
    Sketcher.Constraint("Coincident", 59, 3, -1, 1),
    Sketcher.Constraint("Coincident", 61, 3, -1, 1),
    Sketcher.Constraint("Coincident", 63, 3, -1, 1),
    Sketcher.Constraint("Coincident", 65, 3, -1, 1),
    Sketcher.Constraint("Coincident", 67, 3, -1, 1),
    Sketcher.Constraint("Coincident", 69, 3, -1, 1),
    Sketcher.Constraint("Coincident", 71, 3, -1, 1),
    Sketcher.Constraint("Coincident", 73, 3, -1, 1),
    Sketcher.Constraint("Coincident", 75, 3, -1, 1),
    Sketcher.Constraint("Coincident", 77, 3, -1, 1),
    Sketcher.Constraint("Coincident", 79, 3, -1, 1),
    Sketcher.Constraint("Coincident", 80, 3, -1, 1),
    Sketcher.Constraint("Equal", 1, 5),
    Sketcher.Constraint("Equal", 3, 7),
    Sketcher.Constraint("Equal", 5, 9),
    Sketcher.Constraint("Equal", 7, 11),
    Sketcher.Constraint("Equal", 9, 13),
    Sketcher.Constraint("Equal", 11, 15),
    Sketcher.Constraint("Equal", 13, 17),
    Sketcher.Constraint("Equal", 15, 19),
    Sketcher.Constraint("Equal", 17, 21),
    Sketcher.Constraint("Equal", 19, 23),
    Sketcher.Constraint("Equal", 21, 25),
    Sketcher.Constraint("Equal", 23, 27),
    Sketcher.Constraint("Equal", 25, 29),
    Sketcher.Constraint("Equal", 27, 31),
    Sketcher.Constraint("Equal", 29, 33),
    Sketcher.Constraint("Equal", 31, 35),
    Sketcher.Constraint("Equal", 33, 37),
    Sketcher.Constraint("Equal", 35, 39),
    Sketcher.Constraint("Equal", 37, 41),
    Sketcher.Constraint("Equal", 39, 43),
    Sketcher.Constraint("Equal", 41, 45),
    Sketcher.Constraint("Equal", 43, 47),
    Sketcher.Constraint("Equal", 45, 49),
    Sketcher.Constraint("Equal", 47, 51),
    Sketcher.Constraint("Equal", 49, 53),
    Sketcher.Constraint("Equal", 51, 55),
    Sketcher.Constraint("Equal", 53, 57),
    Sketcher.Constraint("Equal", 55, 59),
    Sketcher.Constraint("Equal", 57, 61),
    Sketcher.Constraint("Equal", 59, 63),
    Sketcher.Constraint("Equal", 61, 65),
    Sketcher.Constraint("Equal", 63, 67),
    Sketcher.Constraint("Equal", 65, 69),
    Sketcher.Constraint("Equal", 67, 71),
    Sketcher.Constraint("Equal", 69, 73),
    Sketcher.Constraint("Equal", 71, 75),
    Sketcher.Constraint("Equal", 73, 77),
    Sketcher.Constraint("Equal", 75, 79),
    Sketcher.Constraint("Perpendicular", 0, 20),
    Sketcher.Constraint("Perpendicular", 2, 22),
    Sketcher.Constraint("Perpendicular", 4, 24),
    Sketcher.Constraint("Perpendicular", 6, 26),
    Sketcher.Constraint("Perpendicular", 8, 28),
    Sketcher.Constraint("Perpendicular", 10, 30),
    Sketcher.Constraint("Perpendicular", 12, 32),
    Sketcher.Constraint("Perpendicular", 14, 34),
    Sketcher.Constraint("Perpendicular", 16, 36),
    Sketcher.Constraint("Perpendicular", 18, 38),
    Sketcher.Constraint("Perpendicular", 20, 40),
    Sketcher.Constraint("Perpendicular", 22, 42),
    Sketcher.Constraint("Perpendicular", 24, 44),
    Sketcher.Constraint("Perpendicular", 26, 46),
    Sketcher.Constraint("Perpendicular", 28, 48),
    Sketcher.Constraint("Perpendicular", 30, 50),
    Sketcher.Constraint("Perpendicular", 32, 52),
    Sketcher.Constraint("Perpendicular", 34, 54),
    Sketcher.Constraint("Perpendicular", 36, 56),
    Sketcher.Constraint("Perpendicular", 38, 58),
    Sketcher.Constraint("Perpendicular", 40, 60),
    Sketcher.Constraint("Perpendicular", 42, 62),
    Sketcher.Constraint("Perpendicular", 44, 64),
    Sketcher.Constraint("Perpendicular", 46, 66),
    Sketcher.Constraint("Perpendicular", 48, 68),
    Sketcher.Constraint("Perpendicular", 50, 70),
    Sketcher.Constraint("Perpendicular", 52, 72),
    Sketcher.Constraint("Perpendicular", 54, 74),
    Sketcher.Constraint("Perpendicular", 56, 76),
    Sketcher.Constraint("Perpendicular", 58, 78),
    Sketcher.Constraint("Horizontal", 0, 2, 1, 1),
    Sketcher.Constraint("Horizontal", 40, 2, 41, 1),
    Sketcher.Constraint("Horizontal", 39, 1, 42, 2),
    Sketcher.Constraint("Horizontal", 38, 2, 43, 1),
    Sketcher.Constraint("Horizontal", 37, 1, 44, 2),
    Sketcher.Constraint("Horizontal", 36, 2, 45, 1),
    Sketcher.Constraint("Horizontal", 35, 1, 46, 2),
    Sketcher.Constraint("Horizontal", 34, 2, 47, 1),
    Sketcher.Constraint("Horizontal", 33, 1, 48, 2),
    Sketcher.Constraint("Horizontal", 32, 2, 49, 1),
    Sketcher.Constraint("Horizontal", 31, 1, 50, 2),
    Sketcher.Constraint("Horizontal", 30, 2, 51, 1),
    Sketcher.Constraint("Horizontal", 28, 2, 53, 1),
    Sketcher.Constraint("Horizontal", 26, 2, 55, 1),
    Sketcher.Constraint("Horizontal", 24, 2, 57, 1),
    Sketcher.Constraint("Horizontal", 22, 2, 59, 1),
    Sketcher.Constraint("Horizontal", 20, 2, 61, 1),
    Sketcher.Constraint("Horizontal", 18, 2, 63, 1),
    Sketcher.Constraint("Horizontal", 16, 2, 65, 1),
    Sketcher.Constraint("Horizontal", 14, 2, 67, 1),
    Sketcher.Constraint("Horizontal", 12, 2, 69, 1),
    Sketcher.Constraint("Horizontal", 10, 2, 71, 1),
    Sketcher.Constraint("Horizontal", 8, 2, 73, 1),
    Sketcher.Constraint("Horizontal", 6, 2, 75, 1),
    Sketcher.Constraint("Horizontal", 4, 2, 77, 1),
    Sketcher.Constraint("Vertical", 20, 2, 21, 1),
    Sketcher.Constraint("Vertical", 18, 2, 23, 1),
    Sketcher.Constraint("Vertical", 16, 2, 25, 1),
    Sketcher.Constraint("Vertical", 14, 2, 27, 1),
    Sketcher.Constraint("Vertical", 12, 2, 29, 1),
    Sketcher.Constraint("Vertical", 10, 2, 31, 1),
    Sketcher.Constraint("Vertical", 8, 2, 33, 1),
    Sketcher.Constraint("Vertical", 6, 2, 35, 1),
    Sketcher.Constraint("Vertical", 4, 2, 37, 1),
    Sketcher.Constraint("Vertical", 2, 2, 39, 1),
    Sketcher.Constraint("Equal", 2, 4),
    Sketcher.Constraint("Equal", 4, 6),
    Sketcher.Constraint("Equal", 6, 8),
    Sketcher.Constraint("Equal", 8, 10),
    Sketcher.Constraint("Equal", 10, 12),
    Sketcher.Constraint("Equal", 12, 14),
    Sketcher.Constraint("Equal", 14, 16),
    Sketcher.Constraint("Equal", 16, 18),
    Sketcher.Constraint("Equal", 18, 20),
    Sketcher.Constraint("Diameter", 80, 5.0),
    Sketcher.Constraint("Radius", 1, 12.0),
    Sketcher.Constraint("Radius", 3, 10.0),
    Sketcher.Constraint("DistanceX", 2, 2, -1, 1, 1.0),
    Sketcher.Constraint("DistanceX", -1, 1, 0, 2, 0.5),
    Sketcher.Constraint("DistanceY", 3, 1, -1, 1, 9.77191),
    Sketcher.Constraint("DistanceX", 5, 1, -1, 1, 4.180512),
    Sketcher.Constraint("DistanceX", 8, 2, -1, 1, 6.642789),
    Sketcher.Constraint("DistanceY", 9, 1, -1, 1, 9.40588),
])
sketch1.setExpression("Constraints[233]", "Params.sketch1_diameter")
sketch1.setExpression("Constraints[234]", "Params.sketch1_radius")
sketch1.setExpression("Constraints[235]", "Params.sketch1_radius2")
pad1 = body.newObject("PartDesign::Pad", "Pad")
pad1.Profile = sketch1
pad1.setExpression("Length", "Params.pad1_length")
pad1.Reversed = True

# Sketch on XY plane
sketch2 = body.newObject("Sketcher::SketchObject", "Sketch001")
sketch2.AttachmentSupport = (doc.getObject("XY_Plane"), [""])
sketch2.MapMode = "FlatFace"
add_polygon(sketch2, [(2.55, 0), (2.55, -2), (14, -2), (14, 0)])  # lines 0-3
add_polygon(sketch2, [(2.55, 8), (2.55, 6), (14, 6), (14, 8)])  # lines 4-7
sketch2.addConstraint([
    Sketcher.Constraint("Vertical", 0),
    Sketcher.Constraint("Horizontal", 1),
    Sketcher.Constraint("Vertical", 2),
    Sketcher.Constraint("Horizontal", 3),
    Sketcher.Constraint("Vertical", 4),
    Sketcher.Constraint("Horizontal", 5),
    Sketcher.Constraint("Vertical", 6),
    Sketcher.Constraint("Horizontal", 7),
    Sketcher.Constraint("PointOnObject", 2, 2, -1),
    Sketcher.Constraint("Vertical", 3, 2, 4, 2),
    Sketcher.Constraint("Vertical", 2, 2, 5, 2),
    Sketcher.Constraint("Equal", 2, 4),
    Sketcher.Constraint("DistanceY", 0, 2, 0, 1, 2.0),
    Sketcher.Constraint("DistanceX", -1, 1, 1, 2, 14.0),
    Sketcher.Constraint("DistanceY", -1, 1, 4, 2, 6.0),
    Sketcher.Constraint("DistanceX", 1, 1, 1, 2, 11.45),
])
sketch2.setExpression("Constraints[20]", "Params.sketch2_height")
sketch2.setExpression("Constraints[23]", "Params.sketch2_width")
revolution = body.newObject("PartDesign::Revolution", "Revolution")
revolution.Profile = sketch2
revolution.ReferenceAxis = (sketch2, ["V_Axis"])
revolution.setExpression("Angle", "Params.revolution_angle")

# Sketch on XZ plane
sketch3 = body.newObject("Sketcher::SketchObject", "Sketch002")
sketch3.AttachmentSupport = (doc.getObject("XZ_Plane"), [""])
sketch3.MapMode = "FlatFace"
sketch3.AttachmentOffset = App.Placement(Vector(0, 0, -8), App.Rotation())
sketch3.addGeometry(Part.Circle(Vector(0, 0, 0), Vector(0, 0, 1), 5), False)
sketch3.addConstraint([
    Sketcher.Constraint("Coincident", 0, 3, -1, 1),
    Sketcher.Constraint("Diameter", 0, 10.0),
])
sketch3.setExpression("Constraints[1]", "Params.sketch3_diameter")
pocket1 = body.newObject("PartDesign::Pocket", "Pocket")
pocket1.Profile = sketch3
pocket1.setExpression("Length", "Params.pocket1_length")
pocket1.Reversed = True

doc.recompute()
